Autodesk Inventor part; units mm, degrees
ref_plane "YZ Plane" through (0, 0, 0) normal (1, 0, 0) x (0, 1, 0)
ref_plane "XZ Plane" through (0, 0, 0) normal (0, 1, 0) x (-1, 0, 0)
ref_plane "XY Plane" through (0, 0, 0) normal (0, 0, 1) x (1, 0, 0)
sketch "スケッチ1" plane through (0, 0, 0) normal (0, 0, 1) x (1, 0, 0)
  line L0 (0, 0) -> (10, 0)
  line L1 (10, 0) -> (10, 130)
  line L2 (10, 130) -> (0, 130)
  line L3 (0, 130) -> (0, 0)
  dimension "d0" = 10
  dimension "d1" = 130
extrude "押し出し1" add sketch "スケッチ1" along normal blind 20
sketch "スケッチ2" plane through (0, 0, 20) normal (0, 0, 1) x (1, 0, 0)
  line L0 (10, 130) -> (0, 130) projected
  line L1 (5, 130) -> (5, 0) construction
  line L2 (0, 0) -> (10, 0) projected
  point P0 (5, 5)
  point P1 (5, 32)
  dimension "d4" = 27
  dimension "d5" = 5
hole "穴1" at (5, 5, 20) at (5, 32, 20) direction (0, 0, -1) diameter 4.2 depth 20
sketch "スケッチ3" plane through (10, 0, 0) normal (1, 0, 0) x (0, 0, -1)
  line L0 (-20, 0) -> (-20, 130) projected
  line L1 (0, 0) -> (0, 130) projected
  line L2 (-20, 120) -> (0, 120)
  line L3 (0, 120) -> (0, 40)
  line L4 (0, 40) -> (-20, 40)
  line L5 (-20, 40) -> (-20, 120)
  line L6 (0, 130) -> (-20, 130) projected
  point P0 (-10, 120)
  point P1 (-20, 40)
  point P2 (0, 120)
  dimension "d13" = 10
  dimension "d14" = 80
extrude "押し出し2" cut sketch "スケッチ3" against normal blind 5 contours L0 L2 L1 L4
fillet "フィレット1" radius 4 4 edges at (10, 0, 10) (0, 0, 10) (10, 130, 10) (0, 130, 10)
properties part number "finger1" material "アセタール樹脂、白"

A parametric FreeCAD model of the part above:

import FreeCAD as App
import Part
import Sketcher

V = App.Vector


def edges_at(feature, points):
    """Names of the edges that pass closest to the given points."""
    edges = feature.Shape.Edges
    near = lambda p: min(range(len(edges)), key=lambda i: edges[i].distToShape(Part.Vertex(*p))[0])
    return sorted({f"Edge{near(p) + 1}" for p in points})


def add_polygon(sketch, points):
    """Adds a closed chain of lines whose ends are joined by coincident constraints."""
    first, n = sketch.GeometryCount, len(points)
    for a, b in zip(points, points[1:] + points[:1]):
        sketch.addGeometry(Part.LineSegment(App.Vector(*a, 0), App.Vector(*b, 0)), False)
    for i in range(n):
        sketch.addConstraint(Sketcher.Constraint("Coincident", first + i, 2, first + (i + 1) % n, 1))

doc = App.newDocument("Part")
body = doc.addObject("PartDesign::Body", "Body")

# Sketch on XY plane
sketch1 = doc.addObject("Sketcher::SketchObject", "Sketch")
body.addObject(sketch1)
sketch1.AttachmentSupport = (doc.XY_Plane, [""])
sketch1.MapMode = "FlatFace"
add_polygon(sketch1, [(0, 130), (0, 0), (10, 0), (10, 130)])  # lines 0-3
sketch1.addConstraint([
    Sketcher.Constraint("Vertical", 0),
    Sketcher.Constraint("Horizontal", 1),
    Sketcher.Constraint("Vertical", 2),
    Sketcher.Constraint("Horizontal", 3),
    Sketcher.Constraint("Coincident", 0, 2, -1, 1),
    Sketcher.Constraint("DistanceX", 1, 1, 1, 2, 10.0),
    Sketcher.Constraint("DistanceY", 0, 2, 0, 1, 130.0),
])
pad1 = doc.addObject("PartDesign::Pad", "Pad")
body.addObject(pad1)
pad1.Profile = sketch1
pad1.Length = 20

# Sketch on XY plane
sketch2 = doc.addObject("Sketcher::SketchObject", "Sketch001")
body.addObject(sketch2)
sketch2.AttachmentSupport = (doc.XY_Plane, [""])
sketch2.MapMode = "FlatFace"
sketch2.AttachmentOffset = App.Placement(V(0, 0, 20), App.Rotation())
sketch2.addGeometry([
    Part.Circle(V(5, 5, 0), V(0, 0, 1), 2.1),
    Part.Circle(V(5, 32, 0), V(0, 0, 1), 2.1),
], False)
sketch2.addConstraint([
    Sketcher.Constraint("Equal", 0, 1),
    Sketcher.Constraint("Vertical", 0, 3, 1, 3),
    Sketcher.Constraint("Diameter", 0, 4.2),
    Sketcher.Constraint("DistanceX", -1, 1, 0, 3, 5.0),
    Sketcher.Constraint("DistanceY", -1, 1, 0, 3, 5.0),
    Sketcher.Constraint("DistanceY", -1, 1, 1, 3, 32.0),
])
doc.recompute()
hole = doc.addObject("PartDesign::Hole", "Hole")
body.addObject(hole)
hole.Profile = sketch2
hole.ThreadType = "None"
hole.Diameter = 4.2
hole.DepthType = "Dimension"
hole.Depth = 20
hole.DrillPoint = "Flat"

# Sketch on YZ plane
sketch3 = doc.addObject("Sketcher::SketchObject", "Sketch002")
body.addObject(sketch3)
sketch3.AttachmentSupport = (doc.YZ_Plane, [""])
sketch3.MapMode = "FlatFace"
sketch3.AttachmentOffset = App.Placement(V(0, 0, 10), App.Rotation())
add_polygon(sketch3, [(120, 20), (40, 20), (40, 0), (120, 0)])  # lines 0-3
sketch3.addConstraint([
    Sketcher.Constraint("Horizontal", 0),
    Sketcher.Constraint("Vertical", 1),
    Sketcher.Constraint("Horizontal", 2),
    Sketcher.Constraint("Vertical", 3),
    Sketcher.Constraint("PointOnObject", 1, 2, -1),
    Sketcher.Constraint("DistanceX", 0, 2, 0, 1, 80.0),
    Sketcher.Constraint("DistanceY", 1, 2, 1, 1, 20.0),
    Sketcher.Constraint("DistanceX", -1, 1, 0, 2, 40.0),
])
pocket1 = doc.addObject("PartDesign::Pocket", "Pocket")
body.addObject(pocket1)
pocket1.Profile = sketch3
pocket1.Length = 5
doc.recompute()

fillet = doc.addObject("PartDesign::Fillet", "Fillet")
body.addObject(fillet)
fillet.Base = (pocket1, edges_at(pocket1, [
    (10, 0, 10),
    (0, 0, 10),
    (10, 130, 10),
    (0, 130, 10),
]))
fillet.Radius = 4

doc.recompute()
